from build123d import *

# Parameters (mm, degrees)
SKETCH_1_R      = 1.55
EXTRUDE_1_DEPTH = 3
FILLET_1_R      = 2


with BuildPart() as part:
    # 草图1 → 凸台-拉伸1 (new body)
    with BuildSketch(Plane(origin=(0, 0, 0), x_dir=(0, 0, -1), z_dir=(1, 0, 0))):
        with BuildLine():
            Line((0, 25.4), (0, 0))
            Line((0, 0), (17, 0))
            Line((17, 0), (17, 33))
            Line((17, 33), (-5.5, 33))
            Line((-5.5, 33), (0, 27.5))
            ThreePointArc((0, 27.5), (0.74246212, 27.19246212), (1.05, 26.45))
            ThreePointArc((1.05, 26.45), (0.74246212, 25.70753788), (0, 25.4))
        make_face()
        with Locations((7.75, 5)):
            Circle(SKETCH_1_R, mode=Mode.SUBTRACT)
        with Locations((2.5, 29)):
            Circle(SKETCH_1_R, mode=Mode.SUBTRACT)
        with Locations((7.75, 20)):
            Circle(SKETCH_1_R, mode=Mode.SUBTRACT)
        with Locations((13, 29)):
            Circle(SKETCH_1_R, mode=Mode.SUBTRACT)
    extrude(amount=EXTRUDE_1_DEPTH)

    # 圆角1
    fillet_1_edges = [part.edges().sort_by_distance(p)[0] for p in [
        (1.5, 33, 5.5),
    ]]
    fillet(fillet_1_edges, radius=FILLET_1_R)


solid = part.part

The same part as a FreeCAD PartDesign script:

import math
import FreeCAD as App
import Part
import Sketcher

V = App.Vector
Q = App.Units.Quantity


def edges_at(feature, points):
    """Names of the edges that pass closest to the given points."""
    edges = feature.Shape.Edges
    near = lambda p: min(range(len(edges)), key=lambda i: edges[i].distToShape(Part.Vertex(*p))[0])
    return sorted({f"Edge{near(p) + 1}" for p in points})

doc = App.newDocument("Part")
params = doc.addObject("Spreadsheet::Sheet", "Params")
for row, (alias, value) in enumerate([
    ("sketch1_diameter", "3.1 mm"),
    ("sketch1_width", "33 mm"),
    ("sketch1_height", "17 mm"),
    ("sketch1_radius", "1.05 mm"),
    ("sketch1_width2", "25.4 mm"),
    ("pad1_length", "3 mm"),
    ("fillet_radius", "2 mm"),
], start=1):
    params.set(f"A{row}", alias)
    params.set(f"B{row}", "=" + value)
    params.setAlias(f"B{row}", alias)

body = doc.addObject("PartDesign::Body", "Body")

sketch1 = body.newObject("Sketcher::SketchObject", "Sketch")
sketch1.AttachmentSupport = (doc.getObject("YZ_Plane"), [""])
sketch1.MapMode = "FlatFace"
sketch1.addGeometry(Part.LineSegment(V(25.4, 0, 0), V(0, 0, 0)), False)
sketch1.addGeometry(Part.LineSegment(V(0, 0, 0), V(0, -17, 0)), False)
sketch1.addGeometry(Part.LineSegment(V(0, -17, 0), V(33, -17, 0)), False)
sketch1.addGeometry(Part.LineSegment(V(33, -17, 0), V(33, 5.5, 0)), False)
sketch1.addGeometry(Part.LineSegment(V(33, 5.5, 0), V(27.5, 0, 0)), False)
sketch1.addGeometry(Part.ArcOfCircle(Part.Circle(V(26.4, 0, 0), V(0, 0, 1), 1.1), math.radians(-90), math.radians(0)), False)
sketch1.addGeometry(Part.ArcOfCircle(Part.Circle(V(26.5, 0, 0), V(0, 0, 1), 1.1), math.radians(-180), math.radians(-90)), False)
sketch1.addGeometry(Part.Circle(V(5, -7.8, 0), V(0, 0, 1), 1.6), False)
sketch1.addGeometry(Part.Circle(V(20, -7.8, 0), V(0, 0, 1), 1.6), False)
sketch1.addGeometry(Part.Circle(V(29, -2.5, 0), V(0, 0, 1), 1.6), False)
sketch1.addGeometry(Part.Circle(V(29, -13, 0), V(0, 0, 1), 1.6), False)
sketch1.addConstraint(Sketcher.Constraint("Coincident", 0, 2, 1, 1))
sketch1.addConstraint(Sketcher.Constraint("Coincident", 1, 2, 2, 1))
sketch1.addConstraint(Sketcher.Constraint("Coincident", 2, 2, 3, 1))
sketch1.addConstraint(Sketcher.Constraint("Coincident", 3, 2, 4, 1))
sketch1.addConstraint(Sketcher.Constraint("Coincident", 4, 2, 5, 2))
sketch1.addConstraint(Sketcher.Constraint("Tangent", 5, 1, 6, 2))
sketch1.addConstraint(Sketcher.Constraint("Coincident", 6, 1, 0, 1))
sketch1.addConstraint(Sketcher.Constraint("Horizontal", 0))
sketch1.addConstraint(Sketcher.Constraint("Vertical", 1))
sketch1.addConstraint(Sketcher.Constraint("Horizontal", 2))
sketch1.addConstraint(Sketcher.Constraint("Vertical", 3))
sketch1.addConstraint(Sketcher.Constraint("Coincident", 0, 2, -1, 1))
sketch1.addConstraint(Sketcher.Constraint("Equal", 5, 6))
sketch1.addConstraint(Sketcher.Constraint("Equal", 7, 8))
sketch1.addConstraint(Sketcher.Constraint("Equal", 8, 9))
sketch1.addConstraint(Sketcher.Constraint("Equal", 9, 10))
sketch1.addConstraint(Sketcher.Constraint("PointOnObject", 5, 3, -1))
sketch1.addConstraint(Sketcher.Constraint("PointOnObject", 4, 2, -1))
sketch1.addConstraint(Sketcher.Constraint("Horizontal", 7, 3, 8, 3))
sketch1.addConstraint(Sketcher.Constraint("Vertical", 9, 3, 10, 3))
sketch1.addConstraint(Sketcher.Constraint("Vertical", 6, 3, 5, 1))
sketch1.addConstraint(Sketcher.Constraint("Diameter", 7, Q("3.1 mm")))
sketch1.addConstraint(Sketcher.Constraint("DistanceX", 2, 1, 2, 2, Q("33 mm")))
sketch1.addConstraint(Sketcher.Constraint("DistanceY", 1, 2, 1, 1, Q("17 mm")))
sketch1.addConstraint(Sketcher.Constraint("Angle", 4, Q("-135 deg")))
sketch1.addConstraint(Sketcher.Constraint("Radius", 5, Q("1.05 mm")))
sketch1.addConstraint(Sketcher.Constraint("DistanceX", 0, 2, 0, 1, Q("25.4 mm")))
sketch1.addConstraint(Sketcher.Constraint("DistanceX", -1, 1, 7, 3, Q("5 mm")))
sketch1.addConstraint(Sketcher.Constraint("DistanceX", -1, 1, 8, 3, Q("20 mm")))
sketch1.addConstraint(Sketcher.Constraint("DistanceX", -1, 1, 9, 3, Q("29 mm")))
sketch1.addConstraint(Sketcher.Constraint("DistanceY", 10, 3, -1, 1, Q("13 mm")))
sketch1.addConstraint(Sketcher.Constraint("DistanceY", 9, 3, 3, 2, Q("8 mm")))
sketch1.addConstraint(Sketcher.Constraint("DistanceY", 7, 3, -1, 1, Q("7.75 mm")))
sketch1.setExpression("Constraints[21]", "Params.sketch1_diameter")
sketch1.setExpression("Constraints[22]", "Params.sketch1_width")
sketch1.setExpression("Constraints[23]", "Params.sketch1_height")
sketch1.setExpression("Constraints[25]", "Params.sketch1_radius")
sketch1.setExpression("Constraints[26]", "Params.sketch1_width2")
pad1 = body.newObject("PartDesign::Pad", "Pad")
pad1.Profile = sketch1
pad1.setExpression("Length", "Params.pad1_length")
doc.recompute()

fillet = body.newObject("PartDesign::Fillet", "Fillet")
fillet.Base = (pad1, edges_at(pad1, [(1.5, 33, 5.5)]))
fillet.setExpression("Radius", "Params.fillet_radius")

doc.recompute()
